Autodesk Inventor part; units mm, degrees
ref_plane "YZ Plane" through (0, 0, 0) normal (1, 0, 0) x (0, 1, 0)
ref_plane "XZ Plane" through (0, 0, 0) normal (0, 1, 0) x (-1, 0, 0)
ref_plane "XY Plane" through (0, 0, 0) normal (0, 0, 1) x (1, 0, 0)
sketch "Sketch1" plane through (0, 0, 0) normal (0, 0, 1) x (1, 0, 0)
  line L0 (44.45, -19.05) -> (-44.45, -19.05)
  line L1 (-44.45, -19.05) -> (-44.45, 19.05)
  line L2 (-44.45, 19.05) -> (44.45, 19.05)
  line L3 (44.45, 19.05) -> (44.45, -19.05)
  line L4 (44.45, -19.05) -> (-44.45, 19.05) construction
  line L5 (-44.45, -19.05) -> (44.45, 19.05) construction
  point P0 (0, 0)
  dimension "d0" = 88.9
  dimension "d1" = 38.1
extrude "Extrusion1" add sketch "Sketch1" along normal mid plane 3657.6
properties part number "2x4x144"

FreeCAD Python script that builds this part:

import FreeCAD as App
import Part
import Sketcher

V = App.Vector
Q = App.Units.Quantity

doc = App.newDocument("Part")
params = doc.addObject("Spreadsheet::Sheet", "Params")
for row, (alias, value) in enumerate([
    ("sketch1_width", "3.5 in"),
    ("sketch1_height", "1.5 in"),
    ("pad1_length", "144 in"),
], start=1):
    params.set(f"A{row}", alias)
    params.set(f"B{row}", "=" + value)
    params.setAlias(f"B{row}", alias)

body = doc.addObject("PartDesign::Body", "Body")

sketch1 = body.newObject("Sketcher::SketchObject", "Sketch")
sketch1.AttachmentSupport = (doc.getObject("XY_Plane"), [""])
sketch1.MapMode = "FlatFace"
sketch1.addGeometry([
    Part.LineSegment(V(-44.45, -19.05, 0), V(44.45, -19.05, 0)),
    Part.LineSegment(V(44.45, -19.05, 0), V(44.45, 19.05, 0)),
    Part.LineSegment(V(44.45, 19.05, 0), V(-44.45, 19.05, 0)),
    Part.LineSegment(V(-44.45, 19.05, 0), V(-44.45, -19.05, 0)),
], False)
sketch1.addConstraint([
    Sketcher.Constraint("Coincident", 0, 2, 1, 1),
    Sketcher.Constraint("Coincident", 1, 2, 2, 1),
    Sketcher.Constraint("Coincident", 2, 2, 3, 1),
    Sketcher.Constraint("Coincident", 3, 2, 0, 1),
    Sketcher.Constraint("Horizontal", 0),
    Sketcher.Constraint("Vertical", 1),
    Sketcher.Constraint("Horizontal", 2),
    Sketcher.Constraint("Vertical", 3),
    Sketcher.Constraint("Symmetric", 0, 2, 2, 2, -1, 1),
    Sketcher.Constraint("DistanceX", 0, 1, 0, 2, Q("3.5 in")),
    Sketcher.Constraint("DistanceY", 1, 1, 1, 2, Q("1.5 in")),
])
sketch1.setExpression("Constraints[9]", "Params.sketch1_width")
sketch1.setExpression("Constraints[10]", "Params.sketch1_height")
pad1 = body.newObject("PartDesign::Pad", "Pad")
pad1.Profile = sketch1
pad1.setExpression("Length", "Params.pad1_length")
pad1.Midplane = True

doc.recompute()
